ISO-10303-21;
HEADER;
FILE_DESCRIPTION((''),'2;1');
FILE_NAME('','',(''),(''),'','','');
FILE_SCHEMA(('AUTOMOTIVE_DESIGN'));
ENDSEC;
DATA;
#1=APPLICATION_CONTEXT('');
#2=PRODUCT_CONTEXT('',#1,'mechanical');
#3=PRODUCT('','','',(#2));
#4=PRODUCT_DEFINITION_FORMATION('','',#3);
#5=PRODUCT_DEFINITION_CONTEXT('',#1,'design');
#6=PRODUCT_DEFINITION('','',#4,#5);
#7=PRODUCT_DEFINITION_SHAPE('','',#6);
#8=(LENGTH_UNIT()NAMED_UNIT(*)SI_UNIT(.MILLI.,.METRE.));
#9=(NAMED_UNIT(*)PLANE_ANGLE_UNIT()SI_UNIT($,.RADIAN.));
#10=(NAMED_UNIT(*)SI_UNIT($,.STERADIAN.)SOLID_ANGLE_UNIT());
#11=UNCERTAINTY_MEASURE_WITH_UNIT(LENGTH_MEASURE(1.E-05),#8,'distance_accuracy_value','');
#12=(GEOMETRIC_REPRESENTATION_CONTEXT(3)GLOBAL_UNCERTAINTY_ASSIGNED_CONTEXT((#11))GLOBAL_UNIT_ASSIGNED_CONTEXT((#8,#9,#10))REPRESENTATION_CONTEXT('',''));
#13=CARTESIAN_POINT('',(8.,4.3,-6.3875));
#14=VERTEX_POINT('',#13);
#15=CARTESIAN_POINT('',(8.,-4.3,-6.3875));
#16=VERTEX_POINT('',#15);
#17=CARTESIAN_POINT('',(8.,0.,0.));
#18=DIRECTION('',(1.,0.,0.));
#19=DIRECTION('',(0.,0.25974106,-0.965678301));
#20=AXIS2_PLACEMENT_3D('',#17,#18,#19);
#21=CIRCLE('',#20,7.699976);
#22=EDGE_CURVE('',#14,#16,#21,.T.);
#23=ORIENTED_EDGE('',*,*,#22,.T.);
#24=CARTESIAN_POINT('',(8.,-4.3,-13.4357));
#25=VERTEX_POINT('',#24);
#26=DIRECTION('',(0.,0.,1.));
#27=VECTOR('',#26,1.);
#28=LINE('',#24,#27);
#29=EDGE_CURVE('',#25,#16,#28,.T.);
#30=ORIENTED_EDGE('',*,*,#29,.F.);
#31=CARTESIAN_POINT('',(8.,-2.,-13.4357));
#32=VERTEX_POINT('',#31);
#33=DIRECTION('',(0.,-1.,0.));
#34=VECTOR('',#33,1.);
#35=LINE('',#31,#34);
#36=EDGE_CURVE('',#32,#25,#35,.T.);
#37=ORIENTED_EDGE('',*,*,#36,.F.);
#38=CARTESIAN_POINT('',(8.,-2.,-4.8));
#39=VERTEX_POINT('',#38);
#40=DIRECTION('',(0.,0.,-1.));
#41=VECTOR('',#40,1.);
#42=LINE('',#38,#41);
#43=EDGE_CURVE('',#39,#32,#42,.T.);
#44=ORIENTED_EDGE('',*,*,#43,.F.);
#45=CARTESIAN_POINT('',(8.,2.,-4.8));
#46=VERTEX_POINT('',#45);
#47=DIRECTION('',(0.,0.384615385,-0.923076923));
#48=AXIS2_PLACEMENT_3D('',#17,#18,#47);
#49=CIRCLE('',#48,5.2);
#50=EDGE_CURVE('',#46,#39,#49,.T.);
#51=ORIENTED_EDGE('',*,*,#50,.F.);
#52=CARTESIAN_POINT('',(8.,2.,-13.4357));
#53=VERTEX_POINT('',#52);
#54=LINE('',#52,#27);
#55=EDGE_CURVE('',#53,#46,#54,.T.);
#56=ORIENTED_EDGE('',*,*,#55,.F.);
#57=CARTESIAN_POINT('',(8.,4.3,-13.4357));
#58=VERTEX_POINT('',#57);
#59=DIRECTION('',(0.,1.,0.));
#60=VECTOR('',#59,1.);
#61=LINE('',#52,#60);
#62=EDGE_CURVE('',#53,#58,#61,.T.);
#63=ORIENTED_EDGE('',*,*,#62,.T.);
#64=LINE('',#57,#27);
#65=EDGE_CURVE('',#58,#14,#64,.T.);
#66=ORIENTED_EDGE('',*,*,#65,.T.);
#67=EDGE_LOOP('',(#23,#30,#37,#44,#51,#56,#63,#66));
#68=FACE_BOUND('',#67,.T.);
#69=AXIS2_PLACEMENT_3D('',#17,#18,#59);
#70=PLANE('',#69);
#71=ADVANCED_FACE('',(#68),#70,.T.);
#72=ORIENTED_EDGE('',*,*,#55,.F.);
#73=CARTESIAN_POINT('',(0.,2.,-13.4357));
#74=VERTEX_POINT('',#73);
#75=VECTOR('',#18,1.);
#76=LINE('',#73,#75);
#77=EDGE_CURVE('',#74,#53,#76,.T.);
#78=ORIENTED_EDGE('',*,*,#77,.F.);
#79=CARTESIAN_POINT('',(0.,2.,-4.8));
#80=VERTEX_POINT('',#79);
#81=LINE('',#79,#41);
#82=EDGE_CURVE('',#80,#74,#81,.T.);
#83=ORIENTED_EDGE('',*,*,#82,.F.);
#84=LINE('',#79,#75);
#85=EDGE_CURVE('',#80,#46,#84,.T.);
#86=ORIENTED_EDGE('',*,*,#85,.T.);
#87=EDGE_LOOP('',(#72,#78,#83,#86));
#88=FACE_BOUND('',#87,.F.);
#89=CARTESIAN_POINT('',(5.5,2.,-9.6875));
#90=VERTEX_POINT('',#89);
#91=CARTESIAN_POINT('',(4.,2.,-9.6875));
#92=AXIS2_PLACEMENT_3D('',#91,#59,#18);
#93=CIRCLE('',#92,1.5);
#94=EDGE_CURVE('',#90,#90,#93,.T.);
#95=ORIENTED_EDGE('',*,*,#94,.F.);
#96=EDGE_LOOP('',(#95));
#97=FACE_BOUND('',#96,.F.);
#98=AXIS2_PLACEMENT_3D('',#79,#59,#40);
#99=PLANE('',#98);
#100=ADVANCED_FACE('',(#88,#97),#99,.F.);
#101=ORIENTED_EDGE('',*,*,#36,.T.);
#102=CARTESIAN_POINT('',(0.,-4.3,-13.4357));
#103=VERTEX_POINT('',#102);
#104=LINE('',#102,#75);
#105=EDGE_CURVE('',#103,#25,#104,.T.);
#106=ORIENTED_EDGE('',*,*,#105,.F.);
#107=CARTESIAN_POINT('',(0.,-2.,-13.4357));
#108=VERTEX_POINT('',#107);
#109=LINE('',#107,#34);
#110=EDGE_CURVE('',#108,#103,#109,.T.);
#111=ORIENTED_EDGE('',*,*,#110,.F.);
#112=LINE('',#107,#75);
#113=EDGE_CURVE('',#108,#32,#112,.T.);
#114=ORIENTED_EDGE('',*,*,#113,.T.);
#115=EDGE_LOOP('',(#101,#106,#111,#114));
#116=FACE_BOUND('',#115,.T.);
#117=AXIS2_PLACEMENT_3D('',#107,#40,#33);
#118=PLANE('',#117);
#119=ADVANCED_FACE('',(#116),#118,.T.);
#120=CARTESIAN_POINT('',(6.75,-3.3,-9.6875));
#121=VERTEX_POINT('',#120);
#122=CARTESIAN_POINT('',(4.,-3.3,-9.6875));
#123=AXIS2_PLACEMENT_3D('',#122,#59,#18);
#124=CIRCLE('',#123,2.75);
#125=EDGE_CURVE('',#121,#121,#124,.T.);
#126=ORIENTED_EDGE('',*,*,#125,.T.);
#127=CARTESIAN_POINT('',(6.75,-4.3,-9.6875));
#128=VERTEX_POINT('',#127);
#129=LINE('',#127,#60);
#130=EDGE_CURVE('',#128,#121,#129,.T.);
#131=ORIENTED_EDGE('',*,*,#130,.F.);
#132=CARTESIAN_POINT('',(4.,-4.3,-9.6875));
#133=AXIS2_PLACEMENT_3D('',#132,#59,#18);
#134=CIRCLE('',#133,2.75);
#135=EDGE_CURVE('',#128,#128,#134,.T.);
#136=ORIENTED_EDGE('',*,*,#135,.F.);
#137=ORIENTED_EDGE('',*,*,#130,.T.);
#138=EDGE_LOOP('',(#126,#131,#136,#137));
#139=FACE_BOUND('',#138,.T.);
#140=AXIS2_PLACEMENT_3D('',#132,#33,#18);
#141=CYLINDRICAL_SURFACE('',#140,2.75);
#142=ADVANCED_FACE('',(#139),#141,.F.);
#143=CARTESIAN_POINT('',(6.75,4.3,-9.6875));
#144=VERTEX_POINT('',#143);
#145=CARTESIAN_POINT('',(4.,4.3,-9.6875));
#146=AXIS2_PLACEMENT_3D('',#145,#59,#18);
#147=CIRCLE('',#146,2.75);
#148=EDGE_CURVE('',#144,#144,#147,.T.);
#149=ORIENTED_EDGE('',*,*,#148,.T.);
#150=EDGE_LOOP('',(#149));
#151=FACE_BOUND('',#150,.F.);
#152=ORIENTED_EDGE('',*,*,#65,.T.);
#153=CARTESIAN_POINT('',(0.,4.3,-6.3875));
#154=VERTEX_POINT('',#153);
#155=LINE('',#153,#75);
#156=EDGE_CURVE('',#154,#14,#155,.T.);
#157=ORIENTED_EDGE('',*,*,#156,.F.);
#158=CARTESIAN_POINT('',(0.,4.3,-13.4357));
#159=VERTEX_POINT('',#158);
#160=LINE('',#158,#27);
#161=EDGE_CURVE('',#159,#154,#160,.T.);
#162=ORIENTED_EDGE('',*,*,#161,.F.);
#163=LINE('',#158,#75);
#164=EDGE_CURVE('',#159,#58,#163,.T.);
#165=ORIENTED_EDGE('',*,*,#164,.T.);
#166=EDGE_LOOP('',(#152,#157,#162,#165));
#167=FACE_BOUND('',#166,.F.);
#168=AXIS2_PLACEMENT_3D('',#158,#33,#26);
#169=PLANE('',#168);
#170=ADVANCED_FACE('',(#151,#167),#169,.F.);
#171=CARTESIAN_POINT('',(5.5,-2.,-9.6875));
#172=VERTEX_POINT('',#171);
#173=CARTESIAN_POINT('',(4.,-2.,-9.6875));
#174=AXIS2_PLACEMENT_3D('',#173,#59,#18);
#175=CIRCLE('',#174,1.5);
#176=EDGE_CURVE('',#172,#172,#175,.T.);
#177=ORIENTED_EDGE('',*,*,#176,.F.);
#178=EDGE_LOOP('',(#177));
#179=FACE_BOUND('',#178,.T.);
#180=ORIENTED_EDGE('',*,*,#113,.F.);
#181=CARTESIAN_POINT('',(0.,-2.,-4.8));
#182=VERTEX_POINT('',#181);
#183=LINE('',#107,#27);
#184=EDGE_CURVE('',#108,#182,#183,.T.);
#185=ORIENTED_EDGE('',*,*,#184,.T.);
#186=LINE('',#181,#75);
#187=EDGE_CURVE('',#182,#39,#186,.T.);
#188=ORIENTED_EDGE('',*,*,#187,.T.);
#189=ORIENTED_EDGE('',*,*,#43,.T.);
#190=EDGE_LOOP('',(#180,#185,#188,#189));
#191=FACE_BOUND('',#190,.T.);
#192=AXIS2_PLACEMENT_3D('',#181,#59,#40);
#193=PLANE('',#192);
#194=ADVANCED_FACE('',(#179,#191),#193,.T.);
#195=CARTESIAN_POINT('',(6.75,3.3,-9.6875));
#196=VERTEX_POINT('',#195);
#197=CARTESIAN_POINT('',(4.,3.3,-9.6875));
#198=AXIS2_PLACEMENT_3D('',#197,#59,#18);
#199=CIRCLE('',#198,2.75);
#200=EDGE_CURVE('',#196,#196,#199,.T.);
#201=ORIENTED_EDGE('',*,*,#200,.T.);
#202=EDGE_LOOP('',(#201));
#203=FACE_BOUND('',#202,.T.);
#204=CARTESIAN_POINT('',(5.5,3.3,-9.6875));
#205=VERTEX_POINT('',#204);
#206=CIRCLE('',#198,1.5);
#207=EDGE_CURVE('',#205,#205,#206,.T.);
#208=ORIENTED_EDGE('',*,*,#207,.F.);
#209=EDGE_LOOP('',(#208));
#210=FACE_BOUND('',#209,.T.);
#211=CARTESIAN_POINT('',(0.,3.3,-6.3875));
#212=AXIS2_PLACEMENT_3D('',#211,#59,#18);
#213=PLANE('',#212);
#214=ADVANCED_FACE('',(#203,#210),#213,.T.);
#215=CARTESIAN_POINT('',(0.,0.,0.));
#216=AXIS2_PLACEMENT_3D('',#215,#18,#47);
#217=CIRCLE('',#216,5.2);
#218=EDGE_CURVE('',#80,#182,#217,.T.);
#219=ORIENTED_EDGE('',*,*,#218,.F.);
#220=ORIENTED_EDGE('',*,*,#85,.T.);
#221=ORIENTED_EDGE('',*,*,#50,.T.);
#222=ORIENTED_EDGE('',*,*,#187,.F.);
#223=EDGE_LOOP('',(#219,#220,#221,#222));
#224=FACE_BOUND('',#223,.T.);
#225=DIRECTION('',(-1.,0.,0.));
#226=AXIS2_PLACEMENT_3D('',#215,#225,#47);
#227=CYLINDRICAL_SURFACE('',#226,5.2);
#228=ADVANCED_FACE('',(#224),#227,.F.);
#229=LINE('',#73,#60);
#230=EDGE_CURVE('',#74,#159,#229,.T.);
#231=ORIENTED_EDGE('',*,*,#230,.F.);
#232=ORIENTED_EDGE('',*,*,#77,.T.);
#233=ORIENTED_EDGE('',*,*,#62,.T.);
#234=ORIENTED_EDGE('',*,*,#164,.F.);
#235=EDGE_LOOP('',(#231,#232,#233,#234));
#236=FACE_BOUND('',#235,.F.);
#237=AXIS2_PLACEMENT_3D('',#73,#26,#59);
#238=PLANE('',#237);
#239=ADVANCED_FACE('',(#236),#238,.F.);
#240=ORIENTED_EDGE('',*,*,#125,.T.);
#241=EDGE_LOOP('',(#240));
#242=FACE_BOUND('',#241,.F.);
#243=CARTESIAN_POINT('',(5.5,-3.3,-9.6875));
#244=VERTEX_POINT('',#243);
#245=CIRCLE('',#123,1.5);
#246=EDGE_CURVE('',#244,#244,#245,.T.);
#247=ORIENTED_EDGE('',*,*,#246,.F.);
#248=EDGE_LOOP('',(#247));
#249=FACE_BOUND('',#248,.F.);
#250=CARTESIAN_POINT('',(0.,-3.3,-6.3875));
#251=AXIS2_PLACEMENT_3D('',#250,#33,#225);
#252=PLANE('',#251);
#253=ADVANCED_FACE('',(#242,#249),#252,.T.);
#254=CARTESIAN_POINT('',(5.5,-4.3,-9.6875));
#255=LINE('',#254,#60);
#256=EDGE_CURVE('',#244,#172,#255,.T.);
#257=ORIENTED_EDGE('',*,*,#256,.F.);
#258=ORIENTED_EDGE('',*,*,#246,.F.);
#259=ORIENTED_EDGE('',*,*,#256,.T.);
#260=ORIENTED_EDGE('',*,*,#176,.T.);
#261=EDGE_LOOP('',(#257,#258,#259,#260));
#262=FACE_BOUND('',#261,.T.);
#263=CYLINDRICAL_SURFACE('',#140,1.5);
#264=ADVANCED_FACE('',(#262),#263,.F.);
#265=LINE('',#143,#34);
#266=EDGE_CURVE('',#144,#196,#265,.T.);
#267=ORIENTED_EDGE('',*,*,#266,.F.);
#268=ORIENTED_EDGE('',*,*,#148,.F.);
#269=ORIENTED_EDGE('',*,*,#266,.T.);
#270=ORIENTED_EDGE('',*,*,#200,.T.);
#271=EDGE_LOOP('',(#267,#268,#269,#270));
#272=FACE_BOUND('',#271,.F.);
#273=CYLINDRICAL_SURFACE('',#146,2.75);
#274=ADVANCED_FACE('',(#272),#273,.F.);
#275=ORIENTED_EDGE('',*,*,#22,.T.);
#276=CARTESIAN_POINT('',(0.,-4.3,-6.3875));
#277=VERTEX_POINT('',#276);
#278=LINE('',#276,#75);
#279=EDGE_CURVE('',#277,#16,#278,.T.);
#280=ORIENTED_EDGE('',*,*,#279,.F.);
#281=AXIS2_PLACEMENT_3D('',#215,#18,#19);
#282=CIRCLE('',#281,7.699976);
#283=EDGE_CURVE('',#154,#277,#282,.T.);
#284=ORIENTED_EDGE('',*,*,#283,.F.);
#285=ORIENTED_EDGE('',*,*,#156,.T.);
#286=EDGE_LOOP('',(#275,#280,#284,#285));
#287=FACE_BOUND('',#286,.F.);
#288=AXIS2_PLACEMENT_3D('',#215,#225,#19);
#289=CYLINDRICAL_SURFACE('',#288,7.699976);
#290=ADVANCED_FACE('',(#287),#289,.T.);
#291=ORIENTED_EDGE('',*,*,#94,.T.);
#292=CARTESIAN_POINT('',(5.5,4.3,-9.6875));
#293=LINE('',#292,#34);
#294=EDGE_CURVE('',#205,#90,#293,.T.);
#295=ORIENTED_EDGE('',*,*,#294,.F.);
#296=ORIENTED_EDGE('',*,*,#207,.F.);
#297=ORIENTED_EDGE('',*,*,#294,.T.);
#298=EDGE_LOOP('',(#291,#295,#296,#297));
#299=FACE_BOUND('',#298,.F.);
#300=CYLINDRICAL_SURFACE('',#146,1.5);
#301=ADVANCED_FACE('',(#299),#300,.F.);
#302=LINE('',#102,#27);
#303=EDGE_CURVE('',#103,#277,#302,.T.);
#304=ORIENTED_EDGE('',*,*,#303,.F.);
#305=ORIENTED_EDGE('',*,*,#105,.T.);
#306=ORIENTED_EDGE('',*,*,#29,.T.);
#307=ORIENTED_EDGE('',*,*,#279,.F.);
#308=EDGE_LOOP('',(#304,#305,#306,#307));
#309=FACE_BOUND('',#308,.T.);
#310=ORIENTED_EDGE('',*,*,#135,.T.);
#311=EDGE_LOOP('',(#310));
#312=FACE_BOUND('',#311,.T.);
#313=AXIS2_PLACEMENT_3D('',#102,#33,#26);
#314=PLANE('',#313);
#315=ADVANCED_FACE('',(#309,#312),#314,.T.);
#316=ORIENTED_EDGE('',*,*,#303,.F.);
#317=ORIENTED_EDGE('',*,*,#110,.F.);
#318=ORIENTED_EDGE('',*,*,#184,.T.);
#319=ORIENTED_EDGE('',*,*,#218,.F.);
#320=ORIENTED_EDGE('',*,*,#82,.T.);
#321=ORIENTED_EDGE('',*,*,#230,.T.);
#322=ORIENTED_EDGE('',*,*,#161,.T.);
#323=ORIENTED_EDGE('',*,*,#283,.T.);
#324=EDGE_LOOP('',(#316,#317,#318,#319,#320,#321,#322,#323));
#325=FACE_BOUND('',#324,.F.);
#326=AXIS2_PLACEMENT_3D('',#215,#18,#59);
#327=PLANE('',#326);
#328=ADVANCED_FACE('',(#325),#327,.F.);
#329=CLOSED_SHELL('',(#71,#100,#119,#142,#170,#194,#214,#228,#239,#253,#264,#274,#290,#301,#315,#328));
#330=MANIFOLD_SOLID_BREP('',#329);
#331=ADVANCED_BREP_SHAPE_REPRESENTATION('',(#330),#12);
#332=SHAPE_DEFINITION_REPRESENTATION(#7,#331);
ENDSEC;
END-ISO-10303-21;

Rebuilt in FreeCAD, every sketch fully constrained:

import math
import FreeCAD as App
import Part
import Sketcher
Q = App.Units.Quantity

doc = App.newDocument("Part")
body = doc.addObject("PartDesign::Body", "Body")

# Sketch on YZ plane
sketch1 = body.newObject("Sketcher::SketchObject", "Sketch")
sketch1.AttachmentSupport = (doc.getObject("YZ_Plane"), [""])
sketch1.MapMode = "FlatFace"
sketch1.addGeometry(Part.ArcOfCircle(Part.Circle(App.Vector(0, 0, 0), App.Vector(0, 0, 1), 5.2), math.radians(-67), math.radians(247)), False)
sketch1.addGeometry(Part.LineSegment(App.Vector(2, -4.8, 0), App.Vector(2, -13.4, 0)), False)
sketch1.addGeometry(Part.LineSegment(App.Vector(2, -13.4, 0), App.Vector(4.3, -13.4, 0)), False)
sketch1.addGeometry(Part.LineSegment(App.Vector(4.3, -13.4, 0), App.Vector(4.3, -6.4, 0)), False)
sketch1.addGeometry(Part.ArcOfCircle(Part.Circle(App.Vector(0, 0, 0), App.Vector(0, 0, 1), 7.7), math.radians(-56), math.radians(236)), False)
sketch1.addGeometry(Part.LineSegment(App.Vector(-4.3, -6.4, 0), App.Vector(-4.3, -13.4, 0)), False)
sketch1.addGeometry(Part.LineSegment(App.Vector(-4.3, -13.4, 0), App.Vector(-2, -13.4, 0)), False)
sketch1.addGeometry(Part.LineSegment(App.Vector(-2, -13.4, 0), App.Vector(-2, -4.8, 0)), False)
sketch1.addConstraint(Sketcher.Constraint("Coincident", 0, 1, 1, 1))
sketch1.addConstraint(Sketcher.Constraint("Coincident", 1, 2, 2, 1))
sketch1.addConstraint(Sketcher.Constraint("Coincident", 2, 2, 3, 1))
sketch1.addConstraint(Sketcher.Constraint("Coincident", 3, 2, 4, 1))
sketch1.addConstraint(Sketcher.Constraint("Coincident", 4, 2, 5, 1))
sketch1.addConstraint(Sketcher.Constraint("Coincident", 5, 2, 6, 1))
sketch1.addConstraint(Sketcher.Constraint("Coincident", 6, 2, 7, 1))
sketch1.addConstraint(Sketcher.Constraint("Coincident", 7, 2, 0, 2))
sketch1.addConstraint(Sketcher.Constraint("Vertical", 1))
sketch1.addConstraint(Sketcher.Constraint("Horizontal", 2))
sketch1.addConstraint(Sketcher.Constraint("Vertical", 3))
sketch1.addConstraint(Sketcher.Constraint("Vertical", 5))
sketch1.addConstraint(Sketcher.Constraint("Horizontal", 6))
sketch1.addConstraint(Sketcher.Constraint("Vertical", 7))
sketch1.addConstraint(Sketcher.Constraint("Coincident", 0, 3, -1, 1))
sketch1.addConstraint(Sketcher.Constraint("Coincident", 4, 3, -1, 1))
sketch1.addConstraint(Sketcher.Constraint("Symmetric", 2, 2, 5, 2, -2))
sketch1.addConstraint(Sketcher.Constraint("Horizontal", 0, 1, 7, 2))
sketch1.addConstraint(Sketcher.Constraint("Radius", 0, Q("5.2 mm")))
sketch1.addConstraint(Sketcher.Constraint("DistanceX", 2, 1, 2, 2, Q("2.3 mm")))
sketch1.addConstraint(Sketcher.Constraint("DistanceX", -1, 1, 0, 1, Q("2 mm")))
sketch1.addConstraint(Sketcher.Constraint("Radius", 4, Q("7.7 mm")))
sketch1.addConstraint(Sketcher.Constraint("DistanceY", 1, 2, 1, 1, Q("8.6357 mm")))
pad1 = body.newObject("PartDesign::Pad", "Pad")
pad1.Profile = sketch1
pad1.Length = 8

# Sketch on XZ plane
sketch2 = body.newObject("Sketcher::SketchObject", "Sketch001")
sketch2.AttachmentSupport = (doc.getObject("XZ_Plane"), [""])
sketch2.MapMode = "FlatFace"
sketch2.AttachmentOffset = App.Placement(App.Vector(0, 0, -4.3), App.Rotation())
sketch2.addGeometry(Part.Circle(App.Vector(4, -9.7, 0), App.Vector(0, 0, 1), 1.5), False)
sketch2.addConstraint(Sketcher.Constraint("Diameter", 0, Q("3 mm")))
sketch2.addConstraint(Sketcher.Constraint("DistanceX", -1, 1, 0, 3, Q("4 mm")))
sketch2.addConstraint(Sketcher.Constraint("DistanceY", 0, 3, -1, 1, Q("9.6875 mm")))
pocket1 = body.newObject("PartDesign::Pocket", "Pocket")
pocket1.Profile = sketch2
pocket1.Type = "UpToFirst"
pocket1.Reversed = True

# Sketch on XZ plane
sketch3 = body.newObject("Sketcher::SketchObject", "Sketch002")
sketch3.AttachmentSupport = (doc.getObject("XZ_Plane"), [""])
sketch3.MapMode = "FlatFace"
sketch3.AttachmentOffset = App.Placement(App.Vector(0, 0, -4.3), App.Rotation())
sketch3.addGeometry(Part.Circle(App.Vector(4, -9.7, 0), App.Vector(0, 0, 1), 2.8), False)
sketch3.addGeometry(Part.Circle(App.Vector(4, -9.7, 0), App.Vector(0, 0, 1), 1.5), False)
sketch3.addConstraint(Sketcher.Constraint("Coincident", 1, 3, 0, 3))
sketch3.addConstraint(Sketcher.Constraint("Diameter", 0, Q("5.5 mm")))
sketch3.addConstraint(Sketcher.Constraint("Diameter", 1, Q("3 mm")))
sketch3.addConstraint(Sketcher.Constraint("DistanceX", -1, 1, 0, 3, Q("4 mm")))
sketch3.addConstraint(Sketcher.Constraint("DistanceY", 0, 3, -1, 1, Q("9.6875 mm")))
pocket2 = body.newObject("PartDesign::Pocket", "Pocket001")
pocket2.Profile = sketch3
pocket2.Length = 1
pocket2.Reversed = True
doc.recompute()

mirrored = body.newObject("PartDesign::Mirrored", "Mirrored")
mirrored.Originals = [pocket2, pocket1]
mirrored.MirrorPlane = (doc.getObject("XZ_Plane"), [""])
body.Tip = mirrored

doc.recompute()
